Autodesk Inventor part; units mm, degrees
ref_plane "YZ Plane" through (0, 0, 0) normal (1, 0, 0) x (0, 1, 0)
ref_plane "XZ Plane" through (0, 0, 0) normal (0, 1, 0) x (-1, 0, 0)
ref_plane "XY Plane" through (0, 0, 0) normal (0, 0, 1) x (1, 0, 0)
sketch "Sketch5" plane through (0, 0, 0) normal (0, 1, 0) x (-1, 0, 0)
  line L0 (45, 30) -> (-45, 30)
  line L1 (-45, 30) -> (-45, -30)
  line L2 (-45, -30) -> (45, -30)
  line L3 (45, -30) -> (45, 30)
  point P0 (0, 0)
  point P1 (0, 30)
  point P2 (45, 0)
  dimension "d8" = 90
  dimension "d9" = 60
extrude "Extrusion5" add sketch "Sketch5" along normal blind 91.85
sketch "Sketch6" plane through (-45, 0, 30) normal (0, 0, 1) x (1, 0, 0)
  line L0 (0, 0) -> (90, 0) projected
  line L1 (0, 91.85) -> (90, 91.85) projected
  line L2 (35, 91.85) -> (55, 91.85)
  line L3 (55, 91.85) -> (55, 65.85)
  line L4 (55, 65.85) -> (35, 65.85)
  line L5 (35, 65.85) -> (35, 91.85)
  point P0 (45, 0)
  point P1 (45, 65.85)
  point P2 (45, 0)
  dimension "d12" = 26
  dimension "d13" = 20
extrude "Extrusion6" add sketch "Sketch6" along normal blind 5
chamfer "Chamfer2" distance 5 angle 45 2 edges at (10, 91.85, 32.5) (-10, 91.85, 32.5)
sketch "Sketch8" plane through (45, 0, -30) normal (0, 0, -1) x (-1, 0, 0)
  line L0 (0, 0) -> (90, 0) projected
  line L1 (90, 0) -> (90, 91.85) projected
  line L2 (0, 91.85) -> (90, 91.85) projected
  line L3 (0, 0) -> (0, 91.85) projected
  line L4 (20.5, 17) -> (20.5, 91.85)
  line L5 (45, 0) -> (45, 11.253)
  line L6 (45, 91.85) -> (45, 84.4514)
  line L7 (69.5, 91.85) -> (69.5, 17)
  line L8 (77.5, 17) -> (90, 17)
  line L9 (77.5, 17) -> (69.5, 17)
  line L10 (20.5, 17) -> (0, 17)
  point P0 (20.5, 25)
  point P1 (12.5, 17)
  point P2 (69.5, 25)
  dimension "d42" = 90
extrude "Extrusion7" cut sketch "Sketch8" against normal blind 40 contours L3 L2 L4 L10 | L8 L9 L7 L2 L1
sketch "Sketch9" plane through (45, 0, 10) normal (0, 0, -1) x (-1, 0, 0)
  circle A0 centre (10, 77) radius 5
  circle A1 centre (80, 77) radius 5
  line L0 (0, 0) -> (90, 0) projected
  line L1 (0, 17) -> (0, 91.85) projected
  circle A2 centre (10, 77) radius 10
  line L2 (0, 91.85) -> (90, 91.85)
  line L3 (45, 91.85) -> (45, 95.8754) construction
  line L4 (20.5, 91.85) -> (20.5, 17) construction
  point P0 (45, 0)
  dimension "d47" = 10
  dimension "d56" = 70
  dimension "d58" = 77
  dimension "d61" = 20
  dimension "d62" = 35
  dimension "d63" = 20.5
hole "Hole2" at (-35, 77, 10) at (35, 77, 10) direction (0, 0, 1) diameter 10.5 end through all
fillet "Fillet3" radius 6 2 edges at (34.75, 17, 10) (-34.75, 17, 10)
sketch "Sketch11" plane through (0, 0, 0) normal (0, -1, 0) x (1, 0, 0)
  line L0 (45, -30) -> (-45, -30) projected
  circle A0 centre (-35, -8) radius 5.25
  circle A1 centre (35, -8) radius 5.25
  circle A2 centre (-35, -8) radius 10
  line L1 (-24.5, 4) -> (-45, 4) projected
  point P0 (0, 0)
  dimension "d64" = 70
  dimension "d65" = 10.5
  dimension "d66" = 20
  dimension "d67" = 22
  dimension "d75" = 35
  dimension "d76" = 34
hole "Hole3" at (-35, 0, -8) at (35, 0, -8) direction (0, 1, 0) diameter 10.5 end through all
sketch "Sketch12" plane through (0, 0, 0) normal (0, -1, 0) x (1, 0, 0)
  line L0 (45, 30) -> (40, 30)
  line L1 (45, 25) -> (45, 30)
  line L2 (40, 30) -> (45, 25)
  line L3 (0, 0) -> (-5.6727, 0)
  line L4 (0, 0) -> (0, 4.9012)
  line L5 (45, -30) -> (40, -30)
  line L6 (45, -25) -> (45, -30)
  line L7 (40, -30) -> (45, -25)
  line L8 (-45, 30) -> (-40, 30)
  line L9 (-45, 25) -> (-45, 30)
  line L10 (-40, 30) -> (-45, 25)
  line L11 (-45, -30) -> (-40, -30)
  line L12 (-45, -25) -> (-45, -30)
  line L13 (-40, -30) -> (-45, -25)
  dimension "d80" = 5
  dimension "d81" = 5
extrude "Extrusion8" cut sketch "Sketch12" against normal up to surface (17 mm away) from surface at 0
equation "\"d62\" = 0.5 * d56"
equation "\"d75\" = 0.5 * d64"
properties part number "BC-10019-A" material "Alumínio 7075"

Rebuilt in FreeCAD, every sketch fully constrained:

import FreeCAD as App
import Part
import Sketcher
from FreeCAD import Vector
Q = App.Units.Quantity


def edges_at(feature, points):
    """Names of the edges that pass closest to the given points."""
    edges = feature.Shape.Edges
    near = lambda p: min(range(len(edges)), key=lambda i: edges[i].distToShape(Part.Vertex(*p))[0])
    return sorted({f"Edge{near(p) + 1}" for p in points})


def add_polygon(sketch, points):
    """Adds a closed chain of lines whose ends are joined by coincident constraints."""
    first, n = sketch.GeometryCount, len(points)
    for a, b in zip(points, points[1:] + points[:1]):
        sketch.addGeometry(Part.LineSegment(App.Vector(*a, 0), App.Vector(*b, 0)), False)
    for i in range(n):
        sketch.addConstraint(Sketcher.Constraint("Coincident", first + i, 2, first + (i + 1) % n, 1))

doc = App.newDocument("Part")
body = doc.addObject("PartDesign::Body", "Body")

# Sketch on XZ plane
sketch1 = body.newObject("Sketcher::SketchObject", "Sketch")
sketch1.AttachmentSupport = (doc.getObject("XZ_Plane"), [""])
sketch1.MapMode = "FlatFace"
add_polygon(sketch1, [(-45, -30), (-45, 30), (45, 30), (45, -30)])  # lines 0-3
sketch1.addConstraint([
    Sketcher.Constraint("Vertical", 0),
    Sketcher.Constraint("Horizontal", 1),
    Sketcher.Constraint("Vertical", 2),
    Sketcher.Constraint("Horizontal", 3),
    Sketcher.Constraint("Symmetric", 0, 2, 2, 2, -1, 1),
    Sketcher.Constraint("DistanceX", 1, 1, 1, 2, Q("90 mm")),
    Sketcher.Constraint("DistanceY", 0, 1, 0, 2, Q("60 mm")),
])
pad1 = body.newObject("PartDesign::Pad", "Pad")
pad1.Profile = sketch1
pad1.Length = 91.85
pad1.Reversed = True

# Sketch on XY plane
sketch2 = body.newObject("Sketcher::SketchObject", "Sketch001")
sketch2.AttachmentSupport = (doc.getObject("XY_Plane"), [""])
sketch2.MapMode = "FlatFace"
sketch2.AttachmentOffset = App.Placement(Vector(0, 0, 30), App.Rotation())
add_polygon(sketch2, [(10, 92), (-10, 92), (-10, 66), (10, 66)])  # lines 0-3
sketch2.addConstraint([
    Sketcher.Constraint("Horizontal", 0),
    Sketcher.Constraint("Vertical", 1),
    Sketcher.Constraint("Horizontal", 2),
    Sketcher.Constraint("Vertical", 3),
    Sketcher.Constraint("DistanceX", 0, 2, 0, 1, Q("20 mm")),
    Sketcher.Constraint("DistanceY", 1, 2, 1, 1, Q("26 mm")),
    Sketcher.Constraint("DistanceX", 0, 2, -1, 1, Q("10 mm")),
    Sketcher.Constraint("DistanceY", -1, 1, 0, 2, Q("91.85 mm")),
])
pad2 = body.newObject("PartDesign::Pad", "Pad001")
pad2.Profile = sketch2
pad2.Length = 5
doc.recompute()

chamfer = body.newObject("PartDesign::Chamfer", "Chamfer")
chamfer.Base = (pad2, edges_at(pad2, [(10, 91.85, 32.5), (-10, 91.85, 32.5)]))
chamfer.Size = 5

# Sketch on XY plane
sketch3 = body.newObject("Sketcher::SketchObject", "Sketch002")
sketch3.AttachmentSupport = (doc.getObject("XY_Plane"), [""])
sketch3.MapMode = "FlatFace"
sketch3.AttachmentOffset = App.Placement(Vector(0, 0, -30), App.Rotation())
add_polygon(sketch3, [(45, 92), (45, 17), (24, 17), (24, 92)])  # lines 0-3
add_polygon(sketch3, [(-24, 17), (-45, 17), (-45, 92), (-24, 92)])  # lines 4-7
sketch3.addConstraint([
    Sketcher.Constraint("Vertical", 0),
    Sketcher.Constraint("Horizontal", 1),
    Sketcher.Constraint("Vertical", 2),
    Sketcher.Constraint("Horizontal", 3),
    Sketcher.Constraint("Horizontal", 4),
    Sketcher.Constraint("Vertical", 5),
    Sketcher.Constraint("Horizontal", 6),
    Sketcher.Constraint("Vertical", 7),
    Sketcher.Constraint("Symmetric", 0, 2, 4, 2, -2),
    Sketcher.Constraint("Symmetric", 2, 2, 6, 2, -2),
    Sketcher.Constraint("DistanceX", 4, 2, 0, 2, Q("90 mm")),
    Sketcher.Constraint("DistanceX", 1, 2, 1, 1, Q("20.5 mm")),
    Sketcher.Constraint("DistanceY", -1, 1, 0, 2, Q("17 mm")),
    Sketcher.Constraint("DistanceY", 0, 2, 0, 1, Q("74.85 mm")),
])
pocket1 = body.newObject("PartDesign::Pocket", "Pocket")
pocket1.Profile = sketch3
pocket1.Length = 40
pocket1.Reversed = True

# Sketch on XY plane
sketch4 = body.newObject("Sketcher::SketchObject", "Sketch003")
sketch4.AttachmentSupport = (doc.getObject("XY_Plane"), [""])
sketch4.MapMode = "FlatFace"
sketch4.AttachmentOffset = App.Placement(Vector(0, 0, 10), App.Rotation())
sketch4.addGeometry([
    Part.Circle(Vector(-35, 77, 0), Vector(0, 0, 1), 5),
    Part.Circle(Vector(35, 77, 0), Vector(0, 0, 1), 5),
], False)
sketch4.addConstraint([
    Sketcher.Constraint("Equal", 0, 1),
    Sketcher.Constraint("Symmetric", 0, 3, 1, 3, -2),
    Sketcher.Constraint("Diameter", 0, Q("10.5 mm")),
    Sketcher.Constraint("DistanceX", 0, 3, -1, 1, Q("35 mm")),
    Sketcher.Constraint("DistanceY", -1, 1, 0, 3, Q("77 mm")),
])
doc.recompute()
hole = body.newObject("PartDesign::Hole", "Hole")
hole.Profile = sketch4
hole.ThreadType = "None"
hole.Diameter = 10.5
hole.DepthType = "ThroughAll"
hole.Reversed = True
doc.recompute()

fillet = body.newObject("PartDesign::Fillet", "Fillet")
fillet.Base = (hole, edges_at(hole, [(34.75, 17, 10), (-34.75, 17, 10)]))
fillet.Radius = 6

# Sketch on XZ plane
sketch5 = body.newObject("Sketcher::SketchObject", "Sketch004")
sketch5.AttachmentSupport = (doc.getObject("XZ_Plane"), [""])
sketch5.MapMode = "FlatFace"
sketch5.addGeometry([
    Part.Circle(Vector(-35, -8, 0), Vector(0, 0, 1), 5),
    Part.Circle(Vector(35, -8, 0), Vector(0, 0, 1), 5),
], False)
sketch5.addConstraint([
    Sketcher.Constraint("Equal", 0, 1),
    Sketcher.Constraint("Symmetric", 0, 3, 1, 3, -2),
    Sketcher.Constraint("Diameter", 0, Q("10.5 mm")),
    Sketcher.Constraint("DistanceX", 0, 3, -1, 1, Q("35 mm")),
    Sketcher.Constraint("DistanceY", 0, 3, -1, 1, Q("8 mm")),
])
doc.recompute()
hole2 = body.newObject("PartDesign::Hole", "Hole001")
hole2.Profile = sketch5
hole2.ThreadType = "None"
hole2.Diameter = 10.5
hole2.DepthType = "ThroughAll"

# Sketch on XZ plane
sketch6 = body.newObject("Sketcher::SketchObject", "Sketch005")
sketch6.AttachmentSupport = (doc.getObject("XZ_Plane"), [""])
sketch6.MapMode = "FlatFace"
add_polygon(sketch6, [(45, 25), (45, 30), (40, 30)])  # lines 0-2
add_polygon(sketch6, [(40, -30), (45, -30), (45, -25)])  # lines 3-5
add_polygon(sketch6, [(-40, 30), (-45, 30), (-45, 25)])  # lines 6-8
add_polygon(sketch6, [(-45, -25), (-45, -30), (-40, -30)])  # lines 9-11
sketch6.addConstraint([
    Sketcher.Constraint("Vertical", 0),
    Sketcher.Constraint("Horizontal", 1),
    Sketcher.Constraint("Horizontal", 3),
    Sketcher.Constraint("Vertical", 4),
    Sketcher.Constraint("Horizontal", 6),
    Sketcher.Constraint("Vertical", 7),
    Sketcher.Constraint("Vertical", 9),
    Sketcher.Constraint("Horizontal", 10),
    Sketcher.Constraint("Symmetric", 3, 2, 6, 2, -1, 1),
    Sketcher.Constraint("Symmetric", 0, 2, 9, 2, -1, 1),
    Sketcher.Constraint("Symmetric", 0, 2, 6, 2, -2),
    Sketcher.Constraint("Perpendicular", 2, 5),
    Sketcher.Constraint("Parallel", 5, 8),
    Sketcher.Constraint("Perpendicular", 8, 11),
    Sketcher.Constraint("Horizontal", 2, 2, 7, 2),
    Sketcher.Constraint("Horizontal", 4, 2, 11, 2),
    Sketcher.Constraint("Vertical", 1, 2, 5, 2),
    Sketcher.Constraint("Vertical", 8, 2, 10, 2),
    Sketcher.Constraint("DistanceX", 1, 2, 1, 1, Q("5 mm")),
    Sketcher.Constraint("DistanceX", -1, 1, 0, 2, Q("45 mm")),
    Sketcher.Constraint("DistanceY", -1, 1, 0, 2, Q("30 mm")),
])
pocket2 = body.newObject("PartDesign::Pocket", "Pocket001")
pocket2.Profile = sketch6
pocket2.Length = 17

doc.recompute()
